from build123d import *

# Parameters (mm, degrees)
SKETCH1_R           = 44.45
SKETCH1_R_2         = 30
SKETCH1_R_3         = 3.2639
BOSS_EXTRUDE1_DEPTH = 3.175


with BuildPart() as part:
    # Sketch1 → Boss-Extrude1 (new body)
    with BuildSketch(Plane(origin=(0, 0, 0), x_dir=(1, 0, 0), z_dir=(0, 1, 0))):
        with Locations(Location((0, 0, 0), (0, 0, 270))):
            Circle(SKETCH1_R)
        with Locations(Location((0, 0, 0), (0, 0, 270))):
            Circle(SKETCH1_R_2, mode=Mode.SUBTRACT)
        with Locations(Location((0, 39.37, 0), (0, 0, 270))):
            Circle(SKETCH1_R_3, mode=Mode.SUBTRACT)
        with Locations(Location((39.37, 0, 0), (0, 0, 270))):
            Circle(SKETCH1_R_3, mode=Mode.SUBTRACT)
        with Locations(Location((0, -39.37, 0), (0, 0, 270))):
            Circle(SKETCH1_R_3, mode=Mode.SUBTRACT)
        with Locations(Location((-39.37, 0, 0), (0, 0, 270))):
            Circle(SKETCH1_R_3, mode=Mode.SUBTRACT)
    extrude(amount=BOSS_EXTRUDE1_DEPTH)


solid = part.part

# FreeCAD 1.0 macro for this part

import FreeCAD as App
import Part
import Sketcher

V = App.Vector
Q = App.Units.Quantity

doc = App.newDocument("Part")
body = doc.addObject("PartDesign::Body", "Body")

# Sketch on XZ plane
sketch1 = body.newObject("Sketcher::SketchObject", "Sketch")
sketch1.AttachmentSupport = (doc.getObject("XZ_Plane"), [""])
sketch1.MapMode = "FlatFace"
sketch1.addGeometry(Part.Circle(V(0, 0, 0), V(0, 0, 1), 44.5), False)
sketch1.addGeometry(Part.Circle(V(0, -39.4, 0), V(0, 0, 1), 3.3), False)
sketch1.addGeometry(Part.Circle(V(-39.4, 0, 0), V(0, 0, 1), 3.3), False)
sketch1.addGeometry(Part.Circle(V(39.4, 0, 0), V(0, 0, 1), 3.3), False)
sketch1.addGeometry(Part.Circle(V(0, 0, 0), V(0, 0, 1), 30), False)
sketch1.addGeometry(Part.Circle(V(0, 39.4, 0), V(0, 0, 1), 3.3), False)
sketch1.addConstraint(Sketcher.Constraint("Coincident", 0, 3, -1, 1))
sketch1.addConstraint(Sketcher.Constraint("Coincident", 4, 3, -1, 1))
sketch1.addConstraint(Sketcher.Constraint("Equal", 1, 2))
sketch1.addConstraint(Sketcher.Constraint("Equal", 2, 3))
sketch1.addConstraint(Sketcher.Constraint("Equal", 3, 5))
sketch1.addConstraint(Sketcher.Constraint("Symmetric", 2, 3, 3, 3, -1, 1))
sketch1.addConstraint(Sketcher.Constraint("Symmetric", 1, 3, 5, 3, -1, 1))
sketch1.addConstraint(Sketcher.Constraint("PointOnObject", 1, 3, -2))
sketch1.addConstraint(Sketcher.Constraint("PointOnObject", 2, 3, -1))
sketch1.addConstraint(Sketcher.Constraint("Diameter", 0, Q("3.5 in")))
sketch1.addConstraint(Sketcher.Constraint("Diameter", 1, Q("0.257 in")))
sketch1.addConstraint(Sketcher.Constraint("DistanceX", 2, 3, 3, 3, Q("3.1 in")))
sketch1.addConstraint(Sketcher.Constraint("DistanceY", 1, 3, 5, 3, Q("3.1 in")))
sketch1.addConstraint(Sketcher.Constraint("Diameter", 4, 60.0))
pad1 = body.newObject("PartDesign::Pad", "Pad")
pad1.Profile = sketch1
pad1.Length = Q("0.125 in")
pad1.Reversed = True

doc.recompute()
